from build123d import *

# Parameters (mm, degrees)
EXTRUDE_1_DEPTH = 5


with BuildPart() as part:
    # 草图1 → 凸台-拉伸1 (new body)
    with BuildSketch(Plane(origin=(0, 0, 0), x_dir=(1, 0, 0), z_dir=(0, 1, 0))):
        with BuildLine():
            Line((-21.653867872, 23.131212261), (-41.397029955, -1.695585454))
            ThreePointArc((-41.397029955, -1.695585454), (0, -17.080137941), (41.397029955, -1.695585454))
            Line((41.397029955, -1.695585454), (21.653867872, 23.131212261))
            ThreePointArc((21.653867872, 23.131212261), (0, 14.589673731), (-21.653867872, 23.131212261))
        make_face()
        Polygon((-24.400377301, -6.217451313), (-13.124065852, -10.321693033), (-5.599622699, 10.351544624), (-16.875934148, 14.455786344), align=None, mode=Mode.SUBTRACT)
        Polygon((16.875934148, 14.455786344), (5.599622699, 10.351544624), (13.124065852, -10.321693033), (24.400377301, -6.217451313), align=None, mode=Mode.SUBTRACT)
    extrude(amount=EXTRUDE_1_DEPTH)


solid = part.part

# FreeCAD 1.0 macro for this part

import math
import FreeCAD as App
import Part
import Sketcher
Q = App.Units.Quantity

doc = App.newDocument("Part")
body = doc.addObject("PartDesign::Body", "Body")

# Sketch on XZ plane
sketch1 = body.newObject("Sketcher::SketchObject", "Sketch")
sketch1.AttachmentSupport = (doc.getObject("XZ_Plane"), [""])
sketch1.MapMode = "FlatFace"
sketch1.addGeometry([
    Part.LineSegment(App.Vector(-22, -23, 0), App.Vector(-41, 2, 0)),  # 0
    Part.ArcOfCircle(Part.Circle(App.Vector(0, -46, 0), App.Vector(0, 0, 1), 63), math.radians(49), math.radians(131)),  # 1
    Part.LineSegment(App.Vector(41, 2, 0), App.Vector(22, -23, 0)),  # 2
    Part.ArcOfCircle(Part.Circle(App.Vector(0, -46, 0), App.Vector(0, 0, 1), 32), math.radians(47), math.radians(133)),  # 3
    Part.LineSegment(App.Vector(-13, 10, 0), App.Vector(-24, 6, 0)),  # 4
    Part.LineSegment(App.Vector(-24, 6, 0), App.Vector(-17, -14, 0)),  # 5
    Part.LineSegment(App.Vector(-17, -14, 0), App.Vector(-6, -10, 0)),  # 6
    Part.LineSegment(App.Vector(-6, -10, 0), App.Vector(-13, 10, 0)),  # 7
    Part.LineSegment(App.Vector(6, -10, 0), App.Vector(17, -14, 0)),  # 8
    Part.LineSegment(App.Vector(17, -14, 0), App.Vector(24, 6, 0)),  # 9
    Part.LineSegment(App.Vector(24, 6, 0), App.Vector(13, 10, 0)),  # 10
    Part.LineSegment(App.Vector(13, 10, 0), App.Vector(6, -10, 0)),  # 11
], False)
sketch1.addConstraint([
    Sketcher.Constraint("Coincident", 0, 2, 1, 2),
    Sketcher.Constraint("Coincident", 1, 1, 2, 1),
    Sketcher.Constraint("Coincident", 2, 2, 3, 1),
    Sketcher.Constraint("Coincident", 3, 2, 0, 1),
    Sketcher.Constraint("Coincident", 4, 2, 5, 1),
    Sketcher.Constraint("Coincident", 5, 2, 6, 1),
    Sketcher.Constraint("Coincident", 6, 2, 7, 1),
    Sketcher.Constraint("Coincident", 7, 2, 4, 1),
    Sketcher.Constraint("Coincident", 8, 2, 9, 1),
    Sketcher.Constraint("Coincident", 9, 2, 10, 1),
    Sketcher.Constraint("Coincident", 10, 2, 11, 1),
    Sketcher.Constraint("Coincident", 11, 2, 8, 1),
    Sketcher.Constraint("Coincident", 3, 3, 1, 3),
    Sketcher.Constraint("Symmetric", 0, 2, 1, 1, -2),
    Sketcher.Constraint("Symmetric", 5, 2, 8, 2, -2),
    Sketcher.Constraint("Symmetric", 4, 2, 9, 2, -2),
    Sketcher.Constraint("Symmetric", 7, 2, 10, 2, -2),
    Sketcher.Constraint("Symmetric", 6, 2, 11, 2, -2),
    Sketcher.Constraint("Perpendicular", 4, 5),
    Sketcher.Constraint("Perpendicular", 5, 6),
    Sketcher.Constraint("Perpendicular", 6, 7),
    Sketcher.Constraint("Horizontal", 2, 2, 3, 2),
    Sketcher.Constraint("Angle", 4, Q("-160 deg")),
    Sketcher.Constraint("Distance", 4, Q("12 mm")),
    Sketcher.Constraint("Distance", 5, Q("22 mm")),
    Sketcher.Constraint("DistanceX", 6, 2, 9, 2, Q("30 mm")),
    Sketcher.Constraint("Radius", 3, Q("31.7184 mm")),
    Sketcher.Constraint("Radius", 1, Q("63.388212 mm")),
    Sketcher.Constraint("DistanceX", 0, 2, -1, 1, Q("41.39703 mm")),
    Sketcher.Constraint("DistanceY", -1, 1, 4, 2, Q("6.217451 mm")),
    Sketcher.Constraint("DistanceY", 3, 3, 2, 2, Q("23.176862 mm")),
    Sketcher.Constraint("DistanceY", 5, 2, 0, 2, Q("16.151372 mm")),
])
pad1 = body.newObject("PartDesign::Pad", "Pad")
pad1.Profile = sketch1
pad1.Length = 5
pad1.Reversed = True

doc.recompute()
